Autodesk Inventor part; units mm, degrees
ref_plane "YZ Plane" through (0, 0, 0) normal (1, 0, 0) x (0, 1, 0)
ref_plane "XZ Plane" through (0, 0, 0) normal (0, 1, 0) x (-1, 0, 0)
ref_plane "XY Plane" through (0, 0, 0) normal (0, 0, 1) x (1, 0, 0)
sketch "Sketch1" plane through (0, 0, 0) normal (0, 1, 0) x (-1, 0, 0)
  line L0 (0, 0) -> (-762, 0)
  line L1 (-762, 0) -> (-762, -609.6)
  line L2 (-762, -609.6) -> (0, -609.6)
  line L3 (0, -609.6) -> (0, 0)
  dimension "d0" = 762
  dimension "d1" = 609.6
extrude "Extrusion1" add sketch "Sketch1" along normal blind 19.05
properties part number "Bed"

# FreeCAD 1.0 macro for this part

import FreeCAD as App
import Part
import Sketcher
Q = App.Units.Quantity


def add_polygon(sketch, points):
    """Adds a closed chain of lines whose ends are joined by coincident constraints."""
    first, n = sketch.GeometryCount, len(points)
    for a, b in zip(points, points[1:] + points[:1]):
        sketch.addGeometry(Part.LineSegment(App.Vector(*a, 0), App.Vector(*b, 0)), False)
    for i in range(n):
        sketch.addConstraint(Sketcher.Constraint("Coincident", first + i, 2, first + (i + 1) % n, 1))

doc = App.newDocument("Part")
params = doc.addObject("Spreadsheet::Sheet", "Params")
for row, (alias, value) in enumerate([
    ("sketch1_width", "30 in"),
    ("sketch1_height", "24 in"),
    ("pad1_length", "0.75 in"),
], start=1):
    params.set(f"A{row}", alias)
    params.set(f"B{row}", "=" + value)
    params.setAlias(f"B{row}", alias)

body = doc.addObject("PartDesign::Body", "Body")

# Sketch on XZ plane
sketch1 = doc.addObject("Sketcher::SketchObject", "Sketch")
body.addObject(sketch1)
sketch1.AttachmentSupport = (doc.XZ_Plane, [""])
sketch1.MapMode = "FlatFace"
add_polygon(sketch1, [(0, -610), (0, 0), (762, 0), (762, -610)])  # lines 0-3
sketch1.addConstraint(Sketcher.Constraint("Vertical", 0))
sketch1.addConstraint(Sketcher.Constraint("Horizontal", 1))
sketch1.addConstraint(Sketcher.Constraint("Vertical", 2))
sketch1.addConstraint(Sketcher.Constraint("Horizontal", 3))
sketch1.addConstraint(Sketcher.Constraint("Coincident", 0, 2, -1, 1))
sketch1.addConstraint(Sketcher.Constraint("DistanceX", 1, 1, 1, 2, Q("30 in")))
sketch1.addConstraint(Sketcher.Constraint("DistanceY", 0, 1, 0, 2, Q("24 in")))
sketch1.setExpression("Constraints[9]", "Params.sketch1_width")
sketch1.setExpression("Constraints[10]", "Params.sketch1_height")
pad1 = doc.addObject("PartDesign::Pad", "Pad")
body.addObject(pad1)
pad1.Profile = sketch1
pad1.setExpression("Length", "Params.pad1_length")
pad1.Reversed = True

doc.recompute()
